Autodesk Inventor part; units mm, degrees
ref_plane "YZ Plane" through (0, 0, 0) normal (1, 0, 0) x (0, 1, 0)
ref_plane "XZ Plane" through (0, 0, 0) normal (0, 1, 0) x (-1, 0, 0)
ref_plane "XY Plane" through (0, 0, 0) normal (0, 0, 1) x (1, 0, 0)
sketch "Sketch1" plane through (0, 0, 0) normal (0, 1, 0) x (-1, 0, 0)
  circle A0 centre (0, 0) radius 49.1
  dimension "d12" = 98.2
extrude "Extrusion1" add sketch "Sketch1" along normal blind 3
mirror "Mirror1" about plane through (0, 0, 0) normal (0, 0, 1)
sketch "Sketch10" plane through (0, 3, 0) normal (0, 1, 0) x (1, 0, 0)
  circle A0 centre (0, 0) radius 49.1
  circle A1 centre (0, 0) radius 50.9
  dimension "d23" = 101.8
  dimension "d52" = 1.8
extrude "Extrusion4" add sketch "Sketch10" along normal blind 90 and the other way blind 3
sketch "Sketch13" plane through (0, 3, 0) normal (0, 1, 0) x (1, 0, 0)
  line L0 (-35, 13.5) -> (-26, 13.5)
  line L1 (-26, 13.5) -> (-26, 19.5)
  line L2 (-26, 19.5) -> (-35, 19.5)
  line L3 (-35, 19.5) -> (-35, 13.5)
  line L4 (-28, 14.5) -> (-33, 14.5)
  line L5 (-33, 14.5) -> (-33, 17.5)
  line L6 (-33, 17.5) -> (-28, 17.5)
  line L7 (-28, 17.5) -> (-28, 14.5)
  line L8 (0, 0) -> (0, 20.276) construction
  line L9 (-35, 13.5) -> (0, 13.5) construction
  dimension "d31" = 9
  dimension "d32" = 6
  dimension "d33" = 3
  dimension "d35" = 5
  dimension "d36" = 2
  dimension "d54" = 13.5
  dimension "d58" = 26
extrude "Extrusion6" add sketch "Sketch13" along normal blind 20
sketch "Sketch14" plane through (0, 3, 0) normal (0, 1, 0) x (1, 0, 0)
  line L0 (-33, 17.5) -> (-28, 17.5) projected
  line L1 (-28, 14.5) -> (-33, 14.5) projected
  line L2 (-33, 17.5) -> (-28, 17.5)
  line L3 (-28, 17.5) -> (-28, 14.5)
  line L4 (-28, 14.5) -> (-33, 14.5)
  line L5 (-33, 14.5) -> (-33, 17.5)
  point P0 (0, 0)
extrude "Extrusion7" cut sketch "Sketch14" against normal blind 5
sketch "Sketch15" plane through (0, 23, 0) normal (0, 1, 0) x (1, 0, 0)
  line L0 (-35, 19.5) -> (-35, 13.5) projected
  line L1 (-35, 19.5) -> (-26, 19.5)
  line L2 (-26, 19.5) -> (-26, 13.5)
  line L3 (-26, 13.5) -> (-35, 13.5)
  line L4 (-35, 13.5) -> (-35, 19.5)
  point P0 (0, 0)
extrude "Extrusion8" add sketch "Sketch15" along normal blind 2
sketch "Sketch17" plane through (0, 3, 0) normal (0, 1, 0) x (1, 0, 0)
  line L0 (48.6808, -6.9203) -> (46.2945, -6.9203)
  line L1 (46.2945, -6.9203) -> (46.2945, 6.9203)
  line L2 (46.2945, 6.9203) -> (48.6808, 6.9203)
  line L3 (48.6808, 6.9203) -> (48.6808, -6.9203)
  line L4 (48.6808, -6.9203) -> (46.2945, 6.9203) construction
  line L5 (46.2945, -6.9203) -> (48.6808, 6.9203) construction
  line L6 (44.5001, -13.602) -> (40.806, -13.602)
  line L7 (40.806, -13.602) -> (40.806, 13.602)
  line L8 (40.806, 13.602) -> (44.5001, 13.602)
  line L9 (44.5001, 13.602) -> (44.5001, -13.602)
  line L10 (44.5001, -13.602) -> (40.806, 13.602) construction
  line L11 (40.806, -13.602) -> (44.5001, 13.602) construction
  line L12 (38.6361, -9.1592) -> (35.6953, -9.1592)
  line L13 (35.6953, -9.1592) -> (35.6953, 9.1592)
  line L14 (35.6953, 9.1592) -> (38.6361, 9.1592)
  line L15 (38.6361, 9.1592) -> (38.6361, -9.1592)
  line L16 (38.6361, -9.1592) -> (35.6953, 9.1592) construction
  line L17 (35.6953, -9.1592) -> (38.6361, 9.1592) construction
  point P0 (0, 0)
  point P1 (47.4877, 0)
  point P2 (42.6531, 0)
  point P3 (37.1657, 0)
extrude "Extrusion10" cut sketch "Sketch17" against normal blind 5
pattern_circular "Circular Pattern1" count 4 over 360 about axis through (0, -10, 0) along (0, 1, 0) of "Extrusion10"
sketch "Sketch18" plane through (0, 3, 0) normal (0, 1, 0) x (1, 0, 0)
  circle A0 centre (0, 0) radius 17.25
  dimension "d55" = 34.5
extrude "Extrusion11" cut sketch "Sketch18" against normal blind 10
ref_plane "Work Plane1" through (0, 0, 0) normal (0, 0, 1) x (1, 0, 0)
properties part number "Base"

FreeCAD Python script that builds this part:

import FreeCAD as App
import Part
import Sketcher
from FreeCAD import Vector
Q = App.Units.Quantity

doc = App.newDocument("Part")
body = doc.addObject("PartDesign::Body", "Body")

# Sketch on XZ plane
sketch1 = body.newObject("Sketcher::SketchObject", "Sketch")
sketch1.AttachmentSupport = (doc.getObject("XZ_Plane"), [""])
sketch1.MapMode = "FlatFace"
sketch1.addGeometry(Part.Circle(Vector(0, 0, 0), Vector(0, 0, 1), 49.1), False)
sketch1.addConstraint(Sketcher.Constraint("Coincident", 0, 3, -1, 1))
sketch1.addConstraint(Sketcher.Constraint("Diameter", 0, Q("98.2 mm")))
pad1 = body.newObject("PartDesign::Pad", "Pad")
pad1.Profile = sketch1
pad1.Length = 3
pad1.Reversed = True
doc.recompute()

mirrored = body.newObject("PartDesign::Mirrored", "Mirrored")
mirrored.TransformMode = "Transform body"
mirrored.MirrorPlane = (doc.getObject("XY_Plane"), [""])
body.Tip = mirrored

# Sketch on XZ plane
sketch2 = body.newObject("Sketcher::SketchObject", "Sketch001")
sketch2.AttachmentSupport = (doc.getObject("XZ_Plane"), [""])
sketch2.MapMode = "FlatFace"
sketch2.AttachmentOffset = App.Placement(Vector(0, 0, -3), App.Rotation())
sketch2.addGeometry(Part.Circle(Vector(0, 0, 0), Vector(0, 0, 1), 50.9), False)
sketch2.addGeometry(Part.Circle(Vector(0, 0, 0), Vector(0, 0, 1), 49.1), False)
sketch2.addConstraint(Sketcher.Constraint("Coincident", 0, 3, -1, 1))
sketch2.addConstraint(Sketcher.Constraint("Coincident", 1, 3, -1, 1))
sketch2.addConstraint(Sketcher.Constraint("Diameter", 0, Q("101.8 mm")))
sketch2.addConstraint(Sketcher.Constraint("Diameter", 1, Q("98.2 mm")))
pad2 = body.newObject("PartDesign::Pad", "Pad001")
pad2.Profile = sketch2
pad2.Type = "TwoLengths"
pad2.Length = 90
pad2.Length2 = 3
pad2.Reversed = True

# Sketch on XZ plane
sketch3 = body.newObject("Sketcher::SketchObject", "Sketch002")
sketch3.AttachmentSupport = (doc.getObject("XZ_Plane"), [""])
sketch3.MapMode = "FlatFace"
sketch3.AttachmentOffset = App.Placement(Vector(0, 0, -3), App.Rotation())
sketch3.addGeometry(Part.LineSegment(Vector(-35, -19.5, 0), Vector(-35, -13.5, 0)), False)
sketch3.addGeometry(Part.LineSegment(Vector(-35, -13.5, 0), Vector(-26, -13.5, 0)), False)
sketch3.addGeometry(Part.LineSegment(Vector(-26, -13.5, 0), Vector(-26, -19.5, 0)), False)
sketch3.addGeometry(Part.LineSegment(Vector(-26, -19.5, 0), Vector(-35, -19.5, 0)), False)
sketch3.addGeometry(Part.LineSegment(Vector(-28, -17.5, 0), Vector(-28, -14.5, 0)), False)
sketch3.addGeometry(Part.LineSegment(Vector(-28, -14.5, 0), Vector(-33, -14.5, 0)), False)
sketch3.addGeometry(Part.LineSegment(Vector(-33, -14.5, 0), Vector(-33, -17.5, 0)), False)
sketch3.addGeometry(Part.LineSegment(Vector(-33, -17.5, 0), Vector(-28, -17.5, 0)), False)
sketch3.addConstraint(Sketcher.Constraint("Coincident", 0, 2, 1, 1))
sketch3.addConstraint(Sketcher.Constraint("Coincident", 1, 2, 2, 1))
sketch3.addConstraint(Sketcher.Constraint("Coincident", 2, 2, 3, 1))
sketch3.addConstraint(Sketcher.Constraint("Coincident", 3, 2, 0, 1))
sketch3.addConstraint(Sketcher.Constraint("Coincident", 4, 2, 5, 1))
sketch3.addConstraint(Sketcher.Constraint("Coincident", 5, 2, 6, 1))
sketch3.addConstraint(Sketcher.Constraint("Coincident", 6, 2, 7, 1))
sketch3.addConstraint(Sketcher.Constraint("Coincident", 7, 2, 4, 1))
sketch3.addConstraint(Sketcher.Constraint("Vertical", 0))
sketch3.addConstraint(Sketcher.Constraint("Horizontal", 1))
sketch3.addConstraint(Sketcher.Constraint("Vertical", 2))
sketch3.addConstraint(Sketcher.Constraint("Horizontal", 3))
sketch3.addConstraint(Sketcher.Constraint("Vertical", 4))
sketch3.addConstraint(Sketcher.Constraint("Horizontal", 5))
sketch3.addConstraint(Sketcher.Constraint("Vertical", 6))
sketch3.addConstraint(Sketcher.Constraint("Horizontal", 7))
sketch3.addConstraint(Sketcher.Constraint("DistanceX", 1, 1, 1, 2, Q("9 mm")))
sketch3.addConstraint(Sketcher.Constraint("DistanceX", 5, 2, 5, 1, Q("5 mm")))
sketch3.addConstraint(Sketcher.Constraint("DistanceY", 0, 1, 0, 2, Q("6 mm")))
sketch3.addConstraint(Sketcher.Constraint("DistanceY", 4, 1, 4, 2, Q("3 mm")))
sketch3.addConstraint(Sketcher.Constraint("DistanceX", 1, 2, -1, 1, Q("26 mm")))
sketch3.addConstraint(Sketcher.Constraint("DistanceX", 4, 2, 1, 2, Q("2 mm")))
sketch3.addConstraint(Sketcher.Constraint("DistanceY", 2, 2, 4, 2, Q("5 mm")))
sketch3.addConstraint(Sketcher.Constraint("DistanceY", 0, 2, -1, 1, Q("13.5 mm")))
pad3 = body.newObject("PartDesign::Pad", "Pad002")
pad3.Profile = sketch3
pad3.Length = 20
pad3.Reversed = True

# Sketch on XZ plane
sketch4 = body.newObject("Sketcher::SketchObject", "Sketch003")
sketch4.AttachmentSupport = (doc.getObject("XZ_Plane"), [""])
sketch4.MapMode = "FlatFace"
sketch4.AttachmentOffset = App.Placement(Vector(0, 0, -3), App.Rotation())
sketch4.addGeometry(Part.LineSegment(Vector(-28, -17.5, 0), Vector(-33, -17.5, 0)), False)
sketch4.addGeometry(Part.LineSegment(Vector(-33, -17.5, 0), Vector(-33, -14.5, 0)), False)
sketch4.addGeometry(Part.LineSegment(Vector(-33, -14.5, 0), Vector(-28, -14.5, 0)), False)
sketch4.addGeometry(Part.LineSegment(Vector(-28, -14.5, 0), Vector(-28, -17.5, 0)), False)
sketch4.addConstraint(Sketcher.Constraint("Coincident", 0, 2, 1, 1))
sketch4.addConstraint(Sketcher.Constraint("Coincident", 1, 2, 2, 1))
sketch4.addConstraint(Sketcher.Constraint("Coincident", 2, 2, 3, 1))
sketch4.addConstraint(Sketcher.Constraint("Coincident", 3, 2, 0, 1))
sketch4.addConstraint(Sketcher.Constraint("Horizontal", 0))
sketch4.addConstraint(Sketcher.Constraint("Vertical", 1))
sketch4.addConstraint(Sketcher.Constraint("Horizontal", 2))
sketch4.addConstraint(Sketcher.Constraint("Vertical", 3))
sketch4.addConstraint(Sketcher.Constraint("DistanceX", 0, 2, 0, 1, Q("5 mm")))
sketch4.addConstraint(Sketcher.Constraint("DistanceY", 1, 1, 1, 2, Q("3 mm")))
sketch4.addConstraint(Sketcher.Constraint("DistanceX", 0, 2, -1, 1, Q("33 mm")))
sketch4.addConstraint(Sketcher.Constraint("DistanceY", 0, 2, -1, 1, Q("17.5 mm")))
pocket1 = body.newObject("PartDesign::Pocket", "Pocket")
pocket1.Profile = sketch4
pocket1.Length = 5
pocket1.Reversed = True

# Sketch on XZ plane
sketch5 = body.newObject("Sketcher::SketchObject", "Sketch004")
sketch5.AttachmentSupport = (doc.getObject("XZ_Plane"), [""])
sketch5.MapMode = "FlatFace"
sketch5.AttachmentOffset = App.Placement(Vector(0, 0, -23), App.Rotation())
sketch5.addGeometry(Part.LineSegment(Vector(-26, -19.5, 0), Vector(-35, -19.5, 0)), False)
sketch5.addGeometry(Part.LineSegment(Vector(-35, -19.5, 0), Vector(-35, -13.5, 0)), False)
sketch5.addGeometry(Part.LineSegment(Vector(-35, -13.5, 0), Vector(-26, -13.5, 0)), False)
sketch5.addGeometry(Part.LineSegment(Vector(-26, -13.5, 0), Vector(-26, -19.5, 0)), False)
sketch5.addConstraint(Sketcher.Constraint("Coincident", 0, 2, 1, 1))
sketch5.addConstraint(Sketcher.Constraint("Coincident", 1, 2, 2, 1))
sketch5.addConstraint(Sketcher.Constraint("Coincident", 2, 2, 3, 1))
sketch5.addConstraint(Sketcher.Constraint("Coincident", 3, 2, 0, 1))
sketch5.addConstraint(Sketcher.Constraint("Horizontal", 0))
sketch5.addConstraint(Sketcher.Constraint("Vertical", 1))
sketch5.addConstraint(Sketcher.Constraint("Horizontal", 2))
sketch5.addConstraint(Sketcher.Constraint("Vertical", 3))
sketch5.addConstraint(Sketcher.Constraint("DistanceX", 0, 2, 0, 1, Q("9 mm")))
sketch5.addConstraint(Sketcher.Constraint("DistanceY", 1, 1, 1, 2, Q("6 mm")))
sketch5.addConstraint(Sketcher.Constraint("DistanceX", 0, 2, -1, 1, Q("35 mm")))
sketch5.addConstraint(Sketcher.Constraint("DistanceY", 0, 2, -1, 1, Q("19.5 mm")))
pad4 = body.newObject("PartDesign::Pad", "Pad003")
pad4.Profile = sketch5
pad4.Length = 2
pad4.Reversed = True

# Sketch on XZ plane
sketch6 = body.newObject("Sketcher::SketchObject", "Sketch005")
sketch6.AttachmentSupport = (doc.getObject("XZ_Plane"), [""])
sketch6.MapMode = "FlatFace"
sketch6.AttachmentOffset = App.Placement(Vector(0, 0, -3), App.Rotation())
sketch6.addGeometry(Part.LineSegment(Vector(46.2945, 6.9203, 0), Vector(48.6808, 6.9203, 0)), False)
sketch6.addGeometry(Part.LineSegment(Vector(48.6808, 6.9203, 0), Vector(48.6808, -6.9203, 0)), False)
sketch6.addGeometry(Part.LineSegment(Vector(48.6808, -6.9203, 0), Vector(46.2945, -6.9203, 0)), False)
sketch6.addGeometry(Part.LineSegment(Vector(46.2945, -6.9203, 0), Vector(46.2945, 6.9203, 0)), False)
sketch6.addGeometry(Part.LineSegment(Vector(40.806, 13.602, 0), Vector(44.5001, 13.602, 0)), False)
sketch6.addGeometry(Part.LineSegment(Vector(44.5001, 13.602, 0), Vector(44.5001, -13.602, 0)), False)
sketch6.addGeometry(Part.LineSegment(Vector(44.5001, -13.602, 0), Vector(40.806, -13.602, 0)), False)
sketch6.addGeometry(Part.LineSegment(Vector(40.806, -13.602, 0), Vector(40.806, 13.602, 0)), False)
sketch6.addGeometry(Part.LineSegment(Vector(35.6953, 9.1592, 0), Vector(38.6361, 9.1592, 0)), False)
sketch6.addGeometry(Part.LineSegment(Vector(38.6361, 9.1592, 0), Vector(38.6361, -9.1592, 0)), False)
sketch6.addGeometry(Part.LineSegment(Vector(38.6361, -9.1592, 0), Vector(35.6953, -9.1592, 0)), False)
sketch6.addGeometry(Part.LineSegment(Vector(35.6953, -9.1592, 0), Vector(35.6953, 9.1592, 0)), False)
sketch6.addConstraint(Sketcher.Constraint("Coincident", 0, 2, 1, 1))
sketch6.addConstraint(Sketcher.Constraint("Coincident", 1, 2, 2, 1))
sketch6.addConstraint(Sketcher.Constraint("Coincident", 2, 2, 3, 1))
sketch6.addConstraint(Sketcher.Constraint("Coincident", 3, 2, 0, 1))
sketch6.addConstraint(Sketcher.Constraint("Coincident", 4, 2, 5, 1))
sketch6.addConstraint(Sketcher.Constraint("Coincident", 5, 2, 6, 1))
sketch6.addConstraint(Sketcher.Constraint("Coincident", 6, 2, 7, 1))
sketch6.addConstraint(Sketcher.Constraint("Coincident", 7, 2, 4, 1))
sketch6.addConstraint(Sketcher.Constraint("Coincident", 8, 2, 9, 1))
sketch6.addConstraint(Sketcher.Constraint("Coincident", 9, 2, 10, 1))
sketch6.addConstraint(Sketcher.Constraint("Coincident", 10, 2, 11, 1))
sketch6.addConstraint(Sketcher.Constraint("Coincident", 11, 2, 8, 1))
sketch6.addConstraint(Sketcher.Constraint("Horizontal", 0))
sketch6.addConstraint(Sketcher.Constraint("Vertical", 1))
sketch6.addConstraint(Sketcher.Constraint("Horizontal", 2))
sketch6.addConstraint(Sketcher.Constraint("Vertical", 3))
sketch6.addConstraint(Sketcher.Constraint("Horizontal", 4))
sketch6.addConstraint(Sketcher.Constraint("Vertical", 5))
sketch6.addConstraint(Sketcher.Constraint("Horizontal", 6))
sketch6.addConstraint(Sketcher.Constraint("Vertical", 7))
sketch6.addConstraint(Sketcher.Constraint("Horizontal", 8))
sketch6.addConstraint(Sketcher.Constraint("Vertical", 9))
sketch6.addConstraint(Sketcher.Constraint("Horizontal", 10))
sketch6.addConstraint(Sketcher.Constraint("Vertical", 11))
sketch6.addConstraint(Sketcher.Constraint("DistanceX", -1, 1, 4, 2, Q("44.5 mm")))
sketch6.addConstraint(Sketcher.Constraint("DistanceX", 4, 1, 4, 2, Q("3.694 mm")))
sketch6.addConstraint(Sketcher.Constraint("DistanceY", 5, 2, 5, 1, Q("27.204 mm")))
sketch6.addConstraint(Sketcher.Constraint("DistanceX", 8, 2, 7, 2, Q("2.17 mm")))
sketch6.addConstraint(Sketcher.Constraint("DistanceX", 0, 1, 0, 2, Q("2.3863 mm")))
sketch6.addConstraint(Sketcher.Constraint("DistanceX", 8, 1, 8, 2, Q("2.9408 mm")))
sketch6.addConstraint(Sketcher.Constraint("DistanceY", 1, 2, 1, 1, Q("13.8406 mm")))
sketch6.addConstraint(Sketcher.Constraint("DistanceY", 9, 2, 9, 1, Q("18.3184 mm")))
sketch6.addConstraint(Sketcher.Constraint("DistanceY", -1, 1, 4, 2, Q("13.602 mm")))
sketch6.addConstraint(Sketcher.Constraint("DistanceY", 3, 2, 8, 2, Q("2.239 mm")))
sketch6.addConstraint(Sketcher.Constraint("DistanceX", -1, 1, 0, 2, Q("48.6808 mm")))
sketch6.addConstraint(Sketcher.Constraint("DistanceY", -1, 1, 0, 2, Q("6.9203 mm")))
pocket2 = body.newObject("PartDesign::Pocket", "Pocket001")
pocket2.Profile = sketch6
pocket2.Length = 5
pocket2.Reversed = True
doc.recompute()

polarpattern = body.newObject("PartDesign::PolarPattern", "PolarPattern")
polarpattern.Originals = [pocket2]
polarpattern.Axis = (doc.getObject("Y_Axis"), [""])
polarpattern.Angle = 360
polarpattern.Occurrences = 4
body.Tip = polarpattern

# Sketch on XZ plane
sketch7 = body.newObject("Sketcher::SketchObject", "Sketch006")
sketch7.AttachmentSupport = (doc.getObject("XZ_Plane"), [""])
sketch7.MapMode = "FlatFace"
sketch7.AttachmentOffset = App.Placement(Vector(0, 0, -3), App.Rotation())
sketch7.addGeometry(Part.Circle(Vector(0, 0, 0), Vector(0, 0, 1), 17.25), False)
sketch7.addConstraint(Sketcher.Constraint("Coincident", 0, 3, -1, 1))
sketch7.addConstraint(Sketcher.Constraint("Diameter", 0, Q("34.5 mm")))
pocket3 = body.newObject("PartDesign::Pocket", "Pocket002")
pocket3.Profile = sketch7
pocket3.Length = 10
pocket3.Reversed = True

doc.recompute()
